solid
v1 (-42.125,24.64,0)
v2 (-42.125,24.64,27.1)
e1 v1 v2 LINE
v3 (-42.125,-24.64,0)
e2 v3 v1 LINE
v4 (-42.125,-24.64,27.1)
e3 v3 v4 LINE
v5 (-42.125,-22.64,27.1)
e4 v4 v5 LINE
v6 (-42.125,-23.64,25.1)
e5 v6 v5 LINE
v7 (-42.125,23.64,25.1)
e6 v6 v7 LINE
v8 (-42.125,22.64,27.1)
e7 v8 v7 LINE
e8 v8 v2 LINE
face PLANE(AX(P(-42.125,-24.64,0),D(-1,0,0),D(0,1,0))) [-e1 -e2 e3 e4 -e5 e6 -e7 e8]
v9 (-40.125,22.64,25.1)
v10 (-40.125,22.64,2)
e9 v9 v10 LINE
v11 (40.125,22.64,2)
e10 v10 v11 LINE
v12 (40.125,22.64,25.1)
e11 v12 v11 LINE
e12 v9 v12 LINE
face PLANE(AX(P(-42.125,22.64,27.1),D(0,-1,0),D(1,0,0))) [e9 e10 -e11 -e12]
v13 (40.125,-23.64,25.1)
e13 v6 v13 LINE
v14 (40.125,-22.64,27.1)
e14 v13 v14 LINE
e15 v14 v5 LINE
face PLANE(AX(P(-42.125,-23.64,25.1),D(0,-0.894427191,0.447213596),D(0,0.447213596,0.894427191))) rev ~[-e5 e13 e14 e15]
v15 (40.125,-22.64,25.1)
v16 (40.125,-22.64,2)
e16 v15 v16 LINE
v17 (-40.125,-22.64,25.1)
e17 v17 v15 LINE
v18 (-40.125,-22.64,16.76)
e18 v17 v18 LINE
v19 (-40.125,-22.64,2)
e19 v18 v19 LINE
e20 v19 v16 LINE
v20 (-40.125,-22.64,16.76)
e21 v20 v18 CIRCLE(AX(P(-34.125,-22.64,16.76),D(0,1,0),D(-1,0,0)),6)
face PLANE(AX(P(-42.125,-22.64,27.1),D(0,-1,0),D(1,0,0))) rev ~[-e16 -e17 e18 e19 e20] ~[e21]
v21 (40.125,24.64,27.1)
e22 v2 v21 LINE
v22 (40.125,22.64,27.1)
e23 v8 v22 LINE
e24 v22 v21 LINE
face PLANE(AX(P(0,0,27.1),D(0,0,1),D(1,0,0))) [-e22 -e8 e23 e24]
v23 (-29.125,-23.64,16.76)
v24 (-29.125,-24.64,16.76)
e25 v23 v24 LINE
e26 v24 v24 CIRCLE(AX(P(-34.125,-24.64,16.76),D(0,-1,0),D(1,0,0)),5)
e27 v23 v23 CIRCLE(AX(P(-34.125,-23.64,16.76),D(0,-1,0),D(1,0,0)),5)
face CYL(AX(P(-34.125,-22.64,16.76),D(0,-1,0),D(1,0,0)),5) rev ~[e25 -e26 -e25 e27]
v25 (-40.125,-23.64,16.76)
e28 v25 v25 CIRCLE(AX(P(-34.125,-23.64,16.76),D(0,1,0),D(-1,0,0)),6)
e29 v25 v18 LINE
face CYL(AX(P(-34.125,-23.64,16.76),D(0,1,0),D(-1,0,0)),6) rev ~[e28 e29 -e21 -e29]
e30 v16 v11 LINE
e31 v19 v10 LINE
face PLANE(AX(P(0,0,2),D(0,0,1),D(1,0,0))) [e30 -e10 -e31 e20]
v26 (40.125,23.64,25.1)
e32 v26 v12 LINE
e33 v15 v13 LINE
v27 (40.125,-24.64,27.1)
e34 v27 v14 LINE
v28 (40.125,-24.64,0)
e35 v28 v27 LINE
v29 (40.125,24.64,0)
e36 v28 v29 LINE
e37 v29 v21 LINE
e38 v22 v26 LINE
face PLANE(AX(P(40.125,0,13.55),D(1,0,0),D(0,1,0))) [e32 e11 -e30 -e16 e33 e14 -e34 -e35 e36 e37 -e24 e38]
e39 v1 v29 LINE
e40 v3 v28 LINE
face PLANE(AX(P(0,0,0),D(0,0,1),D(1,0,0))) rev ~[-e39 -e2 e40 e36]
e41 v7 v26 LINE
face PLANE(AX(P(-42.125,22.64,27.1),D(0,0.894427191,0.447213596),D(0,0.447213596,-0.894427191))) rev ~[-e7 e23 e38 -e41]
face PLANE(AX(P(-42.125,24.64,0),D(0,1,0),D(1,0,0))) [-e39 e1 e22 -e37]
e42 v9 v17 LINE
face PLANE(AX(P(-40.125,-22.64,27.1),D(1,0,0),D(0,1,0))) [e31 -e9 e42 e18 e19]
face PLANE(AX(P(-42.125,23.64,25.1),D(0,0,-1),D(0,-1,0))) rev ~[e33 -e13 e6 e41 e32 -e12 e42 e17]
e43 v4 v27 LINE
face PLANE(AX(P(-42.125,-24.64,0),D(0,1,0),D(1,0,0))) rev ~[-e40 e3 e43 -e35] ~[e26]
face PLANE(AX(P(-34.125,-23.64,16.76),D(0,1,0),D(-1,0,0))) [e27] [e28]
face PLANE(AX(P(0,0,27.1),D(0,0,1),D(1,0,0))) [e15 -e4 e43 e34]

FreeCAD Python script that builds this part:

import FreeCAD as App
import Part
import Sketcher

V = App.Vector
Q = App.Units.Quantity

doc = App.newDocument("Part")
body = doc.addObject("PartDesign::Body", "Body")

# Sketch on XY plane
sketch1 = body.newObject("Sketcher::SketchObject", "Sketch")
sketch1.AttachmentSupport = (doc.getObject("XY_Plane"), [""])
sketch1.MapMode = "FlatFace"
sketch1.addGeometry(Part.LineSegment(V(-42, 25, 0), V(-42, -25, 0)), False)
sketch1.addGeometry(Part.LineSegment(V(-42, -25, 0), V(42, -25, 0)), False)
sketch1.addGeometry(Part.LineSegment(V(42, -25, 0), V(42, 25, 0)), False)
sketch1.addGeometry(Part.LineSegment(V(42, 25, 0), V(-42, 25, 0)), False)
sketch1.addConstraint(Sketcher.Constraint("Coincident", 0, 2, 1, 1))
sketch1.addConstraint(Sketcher.Constraint("Coincident", 1, 2, 2, 1))
sketch1.addConstraint(Sketcher.Constraint("Coincident", 2, 2, 3, 1))
sketch1.addConstraint(Sketcher.Constraint("Coincident", 3, 2, 0, 1))
sketch1.addConstraint(Sketcher.Constraint("Vertical", 0))
sketch1.addConstraint(Sketcher.Constraint("Horizontal", 1))
sketch1.addConstraint(Sketcher.Constraint("Vertical", 2))
sketch1.addConstraint(Sketcher.Constraint("Horizontal", 3))
sketch1.addConstraint(Sketcher.Constraint("Symmetric", 0, 2, 2, 2, -1, 1))
sketch1.addConstraint(Sketcher.Constraint("DistanceX", 1, 1, 1, 2, Q("84.25 mm")))
sketch1.addConstraint(Sketcher.Constraint("DistanceY", 0, 2, 0, 1, Q("49.28 mm")))
pad1 = body.newObject("PartDesign::Pad", "Pad")
pad1.Profile = sketch1
pad1.Length = 27.1

# Sketch on XY plane
sketch2 = body.newObject("Sketcher::SketchObject", "Sketch001")
sketch2.AttachmentSupport = (doc.getObject("XY_Plane"), [""])
sketch2.MapMode = "FlatFace"
sketch2.AttachmentOffset = App.Placement(V(0, 0, 27.1), App.Rotation())
sketch2.addGeometry(Part.LineSegment(V(-40, 23, 0), V(-40, -23, 0)), False)
sketch2.addGeometry(Part.LineSegment(V(-40, -23, 0), V(40, -23, 0)), False)
sketch2.addGeometry(Part.LineSegment(V(40, -23, 0), V(40, 23, 0)), False)
sketch2.addGeometry(Part.LineSegment(V(40, 23, 0), V(-40, 23, 0)), False)
sketch2.addConstraint(Sketcher.Constraint("Coincident", 0, 2, 1, 1))
sketch2.addConstraint(Sketcher.Constraint("Coincident", 1, 2, 2, 1))
sketch2.addConstraint(Sketcher.Constraint("Coincident", 2, 2, 3, 1))
sketch2.addConstraint(Sketcher.Constraint("Coincident", 3, 2, 0, 1))
sketch2.addConstraint(Sketcher.Constraint("Vertical", 0))
sketch2.addConstraint(Sketcher.Constraint("Horizontal", 1))
sketch2.addConstraint(Sketcher.Constraint("Vertical", 2))
sketch2.addConstraint(Sketcher.Constraint("Horizontal", 3))
sketch2.addConstraint(Sketcher.Constraint("Symmetric", 0, 2, 2, 2, -1, 1))
sketch2.addConstraint(Sketcher.Constraint("DistanceX", 1, 1, 1, 2, Q("80.25 mm")))
sketch2.addConstraint(Sketcher.Constraint("DistanceY", 0, 2, 0, 1, Q("45.28 mm")))
pocket1 = body.newObject("PartDesign::Pocket", "Pocket")
pocket1.Profile = sketch2
pocket1.Length = 25.1

# Sketch on YZ plane
sketch3 = body.newObject("Sketcher::SketchObject", "Sketch002")
sketch3.AttachmentSupport = (doc.getObject("YZ_Plane"), [""])
sketch3.MapMode = "FlatFace"
sketch3.AttachmentOffset = App.Placement(V(0, 0, 40.125), App.Rotation())
sketch3.addGeometry(Part.LineSegment(V(4, 20, 0), V(23, 20, 0)), False)
sketch3.addGeometry(Part.LineSegment(V(23, 20, 0), V(23, 9, 0)), False)
sketch3.addGeometry(Part.LineSegment(V(23, 9, 0), V(4, 9, 0)), False)
sketch3.addGeometry(Part.LineSegment(V(4, 9, 0), V(4, 20, 0)), False)
sketch3.addConstraint(Sketcher.Constraint("Coincident", 0, 2, 1, 1))
sketch3.addConstraint(Sketcher.Constraint("Coincident", 1, 2, 2, 1))
sketch3.addConstraint(Sketcher.Constraint("Coincident", 2, 2, 3, 1))
sketch3.addConstraint(Sketcher.Constraint("Coincident", 3, 2, 0, 1))
sketch3.addConstraint(Sketcher.Constraint("Horizontal", 0))
sketch3.addConstraint(Sketcher.Constraint("Vertical", 1))
sketch3.addConstraint(Sketcher.Constraint("Horizontal", 2))
sketch3.addConstraint(Sketcher.Constraint("Vertical", 3))
sketch3.addConstraint(Sketcher.Constraint("DistanceX", 0, 1, 0, 2, Q("18.18 mm")))
sketch3.addConstraint(Sketcher.Constraint("DistanceY", 1, 2, 1, 1, Q("11.31 mm")))
sketch3.addConstraint(Sketcher.Constraint("DistanceX", -1, 1, 0, 2, Q("22.64 mm")))
sketch3.addConstraint(Sketcher.Constraint("DistanceY", -1, 1, 0, 2, Q("20.205 mm")))
pocket2 = body.newObject("PartDesign::Pocket", "Pocket001")
pocket2.Profile = sketch3
pocket2.Length = 25
pocket2.Reversed = True
pocket3 = body.newObject("PartDesign::Pocket", "Pocket002")
pocket3.Profile = sketch3
pocket3.Length = 25
pocket3.Reversed = True

# Sketch on XZ plane
sketch4 = body.newObject("Sketcher::SketchObject", "Sketch003")
sketch4.AttachmentSupport = (doc.getObject("XZ_Plane"), [""])
sketch4.MapMode = "FlatFace"
sketch4.AttachmentOffset = App.Placement(V(0, 0, 22.64), App.Rotation())
sketch4.addGeometry(Part.Circle(V(-34, 17, 0), V(0, 0, 1), 5), False)
sketch4.addConstraint(Sketcher.Constraint("Diameter", 0, Q("10 mm")))
sketch4.addConstraint(Sketcher.Constraint("DistanceY", -1, 1, 0, 3, Q("16.76 mm")))
sketch4.addConstraint(Sketcher.Constraint("DistanceX", 0, 3, -1, 1, Q("34.125 mm")))
doc.recompute()
hole = body.newObject("PartDesign::Hole", "Hole")
hole.Profile = sketch4
hole.ThreadType = "None"
hole.Diameter = 10
hole.DepthType = "Dimension"
hole.Depth = 2
hole.DrillPoint = "Flat"
hole.HoleCutType = "Counterbore"
hole.HoleCutDiameter = 12
hole.HoleCutDepth = 1
hole.Reversed = True

# Sketch on XY plane
sketch5 = body.newObject("Sketcher::SketchObject", "Sketch004")
sketch5.AttachmentSupport = (doc.getObject("XY_Plane"), [""])
sketch5.MapMode = "FlatFace"
sketch5.AttachmentOffset = App.Placement(V(0, 0, 27.1), App.Rotation())
sketch5.addGeometry(Part.LineSegment(V(-42.1, 22.6, 0), V(-42.1, -22.6, 0)), False)
sketch5.addGeometry(Part.LineSegment(V(-42.1, -22.6, 0), V(-38.1, -22.6, 0)), False)
sketch5.addGeometry(Part.LineSegment(V(-38.1, -22.6, 0), V(-38.1, 22.6, 0)), False)
sketch5.addGeometry(Part.LineSegment(V(-38.1, 22.6, 0), V(-42.1, 22.6, 0)), False)
sketch5.addConstraint(Sketcher.Constraint("Coincident", 0, 2, 1, 1))
sketch5.addConstraint(Sketcher.Constraint("Coincident", 1, 2, 2, 1))
sketch5.addConstraint(Sketcher.Constraint("Coincident", 2, 2, 3, 1))
sketch5.addConstraint(Sketcher.Constraint("Coincident", 3, 2, 0, 1))
sketch5.addConstraint(Sketcher.Constraint("Vertical", 0))
sketch5.addConstraint(Sketcher.Constraint("Horizontal", 1))
sketch5.addConstraint(Sketcher.Constraint("Vertical", 2))
sketch5.addConstraint(Sketcher.Constraint("Horizontal", 3))
sketch5.addConstraint(Sketcher.Constraint("DistanceX", 1, 1, 1, 2, Q("4 mm")))
sketch5.addConstraint(Sketcher.Constraint("DistanceY", 0, 2, 0, 1, Q("45.28 mm")))
sketch5.addConstraint(Sketcher.Constraint("DistanceY", 0, 2, -1, 1, Q("22.64 mm")))
sketch5.addConstraint(Sketcher.Constraint("DistanceX", 0, 2, -1, 1, Q("42.125 mm")))
pocket4 = body.newObject("PartDesign::Pocket", "Pocket003")
pocket4.Profile = sketch5
pocket4.Length = 2

# Sketch on YZ plane
sketch6 = body.newObject("Sketcher::SketchObject", "Sketch005")
sketch6.AttachmentSupport = (doc.getObject("YZ_Plane"), [""])
sketch6.MapMode = "FlatFace"
sketch6.AttachmentOffset = App.Placement(V(0, 0, -42.125), App.Rotation())
sketch6.addGeometry(Part.LineSegment(V(-22.6, 27.1, 0), V(-22.6, 25.1, 0)), False)
sketch6.addGeometry(Part.LineSegment(V(-22.6, 25.1, 0), V(-23.6, 25.1, 0)), False)
sketch6.addGeometry(Part.LineSegment(V(-23.6, 25.1, 0), V(-22.6, 27.1, 0)), False)
sketch6.addGeometry(Part.LineSegment(V(22.6, 27.1, 0), V(23.6, 25.1, 0)), False)
sketch6.addGeometry(Part.LineSegment(V(23.6, 25.1, 0), V(22.6, 25.1, 0)), False)
sketch6.addGeometry(Part.LineSegment(V(22.6, 25.1, 0), V(22.6, 27.1, 0)), False)
sketch6.addConstraint(Sketcher.Constraint("Coincident", 0, 2, 1, 1))
sketch6.addConstraint(Sketcher.Constraint("Coincident", 1, 2, 2, 1))
sketch6.addConstraint(Sketcher.Constraint("Coincident", 2, 2, 0, 1))
sketch6.addConstraint(Sketcher.Constraint("Coincident", 3, 2, 4, 1))
sketch6.addConstraint(Sketcher.Constraint("Coincident", 4, 2, 5, 1))
sketch6.addConstraint(Sketcher.Constraint("Coincident", 5, 2, 3, 1))
sketch6.addConstraint(Sketcher.Constraint("Vertical", 0))
sketch6.addConstraint(Sketcher.Constraint("Horizontal", 1))
sketch6.addConstraint(Sketcher.Constraint("Horizontal", 4))
sketch6.addConstraint(Sketcher.Constraint("Vertical", 5))
sketch6.addConstraint(Sketcher.Constraint("Symmetric", 1, 2, 3, 2, -2))
sketch6.addConstraint(Sketcher.Constraint("Symmetric", 2, 2, 5, 2, -2))
sketch6.addConstraint(Sketcher.Constraint("DistanceX", 1, 2, 1, 1, Q("1 mm")))
sketch6.addConstraint(Sketcher.Constraint("DistanceY", 0, 2, 0, 1, Q("2 mm")))
sketch6.addConstraint(Sketcher.Constraint("DistanceY", -1, 1, 0, 2, Q("25.1 mm")))
sketch6.addConstraint(Sketcher.Constraint("DistanceX", 0, 2, -1, 1, Q("22.64 mm")))
pocket5 = body.newObject("PartDesign::Pocket", "Pocket004")
pocket5.Profile = sketch6
pocket5.Length = 82.25
pocket5.Reversed = True

# Sketch on YZ plane
sketch7 = body.newObject("Sketcher::SketchObject", "Sketch006")
sketch7.AttachmentSupport = (doc.getObject("YZ_Plane"), [""])
sketch7.MapMode = "FlatFace"
sketch7.AttachmentOffset = App.Placement(V(0, 0, 42.125), App.Rotation())
sketch7.addGeometry(Part.LineSegment(V(-25, 27, 0), V(-25, 0, 0)), False)
sketch7.addGeometry(Part.LineSegment(V(-25, 0, 0), V(25, 0, 0)), False)
sketch7.addGeometry(Part.LineSegment(V(25, 0, 0), V(25, 27, 0)), False)
sketch7.addGeometry(Part.LineSegment(V(25, 27, 0), V(-25, 27, 0)), False)
sketch7.addGeometry(Part.LineSegment(V(23, 9, 0), V(4, 9, 0)), False)
sketch7.addGeometry(Part.LineSegment(V(4, 9, 0), V(4, 20, 0)), False)
sketch7.addGeometry(Part.LineSegment(V(4, 20, 0), V(23, 20, 0)), False)
sketch7.addGeometry(Part.LineSegment(V(23, 20, 0), V(23, 9, 0)), False)
sketch7.addConstraint(Sketcher.Constraint("Coincident", 0, 2, 1, 1))
sketch7.addConstraint(Sketcher.Constraint("Coincident", 1, 2, 2, 1))
sketch7.addConstraint(Sketcher.Constraint("Coincident", 2, 2, 3, 1))
sketch7.addConstraint(Sketcher.Constraint("Coincident", 3, 2, 0, 1))
sketch7.addConstraint(Sketcher.Constraint("Coincident", 4, 2, 5, 1))
sketch7.addConstraint(Sketcher.Constraint("Coincident", 5, 2, 6, 1))
sketch7.addConstraint(Sketcher.Constraint("Coincident", 6, 2, 7, 1))
sketch7.addConstraint(Sketcher.Constraint("Coincident", 7, 2, 4, 1))
sketch7.addConstraint(Sketcher.Constraint("Vertical", 0))
sketch7.addConstraint(Sketcher.Constraint("Horizontal", 1))
sketch7.addConstraint(Sketcher.Constraint("Vertical", 2))
sketch7.addConstraint(Sketcher.Constraint("Horizontal", 3))
sketch7.addConstraint(Sketcher.Constraint("Horizontal", 4))
sketch7.addConstraint(Sketcher.Constraint("Vertical", 5))
sketch7.addConstraint(Sketcher.Constraint("Horizontal", 6))
sketch7.addConstraint(Sketcher.Constraint("Vertical", 7))
sketch7.addConstraint(Sketcher.Constraint("Symmetric", 0, 2, 1, 2, -1, 1))
sketch7.addConstraint(Sketcher.Constraint("DistanceY", 0, 2, 0, 1, Q("27.1 mm")))
sketch7.addConstraint(Sketcher.Constraint("DistanceX", 6, 2, 2, 2, Q("2 mm")))
sketch7.addConstraint(Sketcher.Constraint("DistanceX", 1, 1, 1, 2, Q("49.28 mm")))
sketch7.addConstraint(Sketcher.Constraint("DistanceX", 4, 2, 4, 1, Q("18.18 mm")))
sketch7.addConstraint(Sketcher.Constraint("DistanceY", 5, 1, 5, 2, Q("11.31 mm")))
sketch7.addConstraint(Sketcher.Constraint("DistanceY", -1, 1, 4, 2, Q("8.895 mm")))
pocket6 = body.newObject("PartDesign::Pocket", "Pocket005")
pocket6.Profile = sketch7
pocket6.Length = 2

doc.recompute()
